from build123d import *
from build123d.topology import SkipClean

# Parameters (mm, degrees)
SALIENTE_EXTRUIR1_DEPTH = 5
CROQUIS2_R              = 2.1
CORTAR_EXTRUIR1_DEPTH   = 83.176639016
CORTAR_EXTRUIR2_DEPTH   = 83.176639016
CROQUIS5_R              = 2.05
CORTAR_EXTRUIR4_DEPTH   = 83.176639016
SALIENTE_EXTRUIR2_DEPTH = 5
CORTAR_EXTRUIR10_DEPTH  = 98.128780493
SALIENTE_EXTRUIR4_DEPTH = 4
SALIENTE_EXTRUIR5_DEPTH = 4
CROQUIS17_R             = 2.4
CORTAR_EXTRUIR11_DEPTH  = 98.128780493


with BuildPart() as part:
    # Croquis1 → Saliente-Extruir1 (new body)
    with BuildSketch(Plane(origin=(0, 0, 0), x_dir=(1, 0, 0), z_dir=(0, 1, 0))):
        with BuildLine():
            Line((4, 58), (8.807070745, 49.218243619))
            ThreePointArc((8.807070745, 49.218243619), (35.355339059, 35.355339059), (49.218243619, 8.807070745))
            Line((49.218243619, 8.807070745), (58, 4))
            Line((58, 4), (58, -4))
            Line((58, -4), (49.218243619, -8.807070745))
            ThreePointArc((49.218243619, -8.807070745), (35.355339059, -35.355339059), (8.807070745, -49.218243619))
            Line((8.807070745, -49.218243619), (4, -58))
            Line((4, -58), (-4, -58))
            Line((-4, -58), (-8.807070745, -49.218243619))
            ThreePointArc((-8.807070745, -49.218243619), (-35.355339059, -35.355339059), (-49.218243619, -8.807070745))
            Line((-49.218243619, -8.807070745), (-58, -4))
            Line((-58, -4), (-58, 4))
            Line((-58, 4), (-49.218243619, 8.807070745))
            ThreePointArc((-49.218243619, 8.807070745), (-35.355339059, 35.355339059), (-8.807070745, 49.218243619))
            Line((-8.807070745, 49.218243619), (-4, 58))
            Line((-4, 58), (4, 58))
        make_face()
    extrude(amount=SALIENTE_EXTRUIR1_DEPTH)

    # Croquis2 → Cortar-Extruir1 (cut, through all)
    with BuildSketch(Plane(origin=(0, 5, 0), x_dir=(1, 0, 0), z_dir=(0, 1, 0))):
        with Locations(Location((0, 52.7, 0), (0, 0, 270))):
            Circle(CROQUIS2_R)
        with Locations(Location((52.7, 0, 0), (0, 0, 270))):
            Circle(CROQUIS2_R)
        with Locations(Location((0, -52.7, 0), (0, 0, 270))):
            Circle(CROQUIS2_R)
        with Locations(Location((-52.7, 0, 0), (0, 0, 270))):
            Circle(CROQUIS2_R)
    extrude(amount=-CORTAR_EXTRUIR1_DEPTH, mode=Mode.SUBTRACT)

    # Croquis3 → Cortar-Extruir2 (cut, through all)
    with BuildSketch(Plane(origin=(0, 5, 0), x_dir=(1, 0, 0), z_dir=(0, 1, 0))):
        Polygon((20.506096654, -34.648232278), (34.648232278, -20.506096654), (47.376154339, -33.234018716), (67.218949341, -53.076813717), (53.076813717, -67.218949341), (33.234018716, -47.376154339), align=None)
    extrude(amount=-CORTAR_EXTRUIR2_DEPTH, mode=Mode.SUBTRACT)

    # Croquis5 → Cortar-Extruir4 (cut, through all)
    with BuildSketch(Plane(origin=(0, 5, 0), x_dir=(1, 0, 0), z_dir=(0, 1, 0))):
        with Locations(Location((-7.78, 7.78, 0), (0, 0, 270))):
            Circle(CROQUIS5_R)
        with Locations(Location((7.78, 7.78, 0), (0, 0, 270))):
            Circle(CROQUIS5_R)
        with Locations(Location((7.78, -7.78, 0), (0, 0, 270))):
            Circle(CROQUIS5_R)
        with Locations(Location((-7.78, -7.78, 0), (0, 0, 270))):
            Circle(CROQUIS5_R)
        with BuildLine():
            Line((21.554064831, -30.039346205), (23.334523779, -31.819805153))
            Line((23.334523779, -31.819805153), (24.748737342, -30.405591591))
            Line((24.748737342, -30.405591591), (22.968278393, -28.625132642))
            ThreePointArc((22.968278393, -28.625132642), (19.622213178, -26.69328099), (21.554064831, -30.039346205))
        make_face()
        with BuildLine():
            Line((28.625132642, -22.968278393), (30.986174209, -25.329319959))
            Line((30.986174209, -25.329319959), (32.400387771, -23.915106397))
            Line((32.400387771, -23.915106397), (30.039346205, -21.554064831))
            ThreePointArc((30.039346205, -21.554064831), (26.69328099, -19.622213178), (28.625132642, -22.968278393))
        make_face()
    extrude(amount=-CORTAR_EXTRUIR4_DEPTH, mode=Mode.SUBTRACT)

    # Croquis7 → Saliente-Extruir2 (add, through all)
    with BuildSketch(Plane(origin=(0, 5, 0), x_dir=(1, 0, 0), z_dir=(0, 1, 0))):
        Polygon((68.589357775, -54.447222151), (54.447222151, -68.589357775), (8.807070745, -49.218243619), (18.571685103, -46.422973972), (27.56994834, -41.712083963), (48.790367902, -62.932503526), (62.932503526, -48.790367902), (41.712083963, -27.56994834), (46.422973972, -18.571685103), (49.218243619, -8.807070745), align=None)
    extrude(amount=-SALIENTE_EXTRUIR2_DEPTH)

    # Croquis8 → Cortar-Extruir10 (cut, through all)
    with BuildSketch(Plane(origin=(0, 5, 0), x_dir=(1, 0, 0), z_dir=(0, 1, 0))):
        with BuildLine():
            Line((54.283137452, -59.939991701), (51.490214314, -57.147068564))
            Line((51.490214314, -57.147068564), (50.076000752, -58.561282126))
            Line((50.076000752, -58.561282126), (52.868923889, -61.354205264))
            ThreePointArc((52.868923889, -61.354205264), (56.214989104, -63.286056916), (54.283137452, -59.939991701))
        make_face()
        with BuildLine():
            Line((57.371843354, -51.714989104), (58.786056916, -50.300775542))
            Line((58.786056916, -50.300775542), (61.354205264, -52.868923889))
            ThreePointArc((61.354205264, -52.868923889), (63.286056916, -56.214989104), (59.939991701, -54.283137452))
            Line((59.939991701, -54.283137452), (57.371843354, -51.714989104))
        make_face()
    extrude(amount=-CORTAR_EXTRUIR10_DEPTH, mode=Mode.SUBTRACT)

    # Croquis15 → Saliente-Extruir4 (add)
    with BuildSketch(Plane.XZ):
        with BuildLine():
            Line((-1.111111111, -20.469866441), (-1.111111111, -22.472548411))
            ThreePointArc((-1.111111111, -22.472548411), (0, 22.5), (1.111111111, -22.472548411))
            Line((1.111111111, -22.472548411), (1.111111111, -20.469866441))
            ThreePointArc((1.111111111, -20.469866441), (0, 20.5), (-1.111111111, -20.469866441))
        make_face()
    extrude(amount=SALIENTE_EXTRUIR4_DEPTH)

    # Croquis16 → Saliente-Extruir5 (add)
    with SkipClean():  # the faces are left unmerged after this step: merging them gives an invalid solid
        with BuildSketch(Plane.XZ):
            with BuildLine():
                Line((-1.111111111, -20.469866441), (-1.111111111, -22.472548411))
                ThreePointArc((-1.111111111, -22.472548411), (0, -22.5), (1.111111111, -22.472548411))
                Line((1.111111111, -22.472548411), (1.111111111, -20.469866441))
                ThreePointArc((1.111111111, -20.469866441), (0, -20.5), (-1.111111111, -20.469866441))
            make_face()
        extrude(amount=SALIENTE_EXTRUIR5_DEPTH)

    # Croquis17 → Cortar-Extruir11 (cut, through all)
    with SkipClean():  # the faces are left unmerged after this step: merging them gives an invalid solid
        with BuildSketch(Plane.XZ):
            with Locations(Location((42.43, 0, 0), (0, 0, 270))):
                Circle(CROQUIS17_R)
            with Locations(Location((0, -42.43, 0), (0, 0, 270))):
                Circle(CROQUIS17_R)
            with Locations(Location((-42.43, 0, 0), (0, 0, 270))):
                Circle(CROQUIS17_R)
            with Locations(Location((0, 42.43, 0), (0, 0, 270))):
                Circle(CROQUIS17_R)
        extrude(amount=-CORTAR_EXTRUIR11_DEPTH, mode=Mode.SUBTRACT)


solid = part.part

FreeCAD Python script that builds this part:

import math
import FreeCAD as App
import Part
import Sketcher

V = App.Vector
Q = App.Units.Quantity

doc = App.newDocument("Part")
body = doc.addObject("PartDesign::Body", "Body")

# Sketch on XZ plane
sketch1 = body.newObject("Sketcher::SketchObject", "Sketch")
sketch1.AttachmentSupport = (doc.getObject("XZ_Plane"), [""])
sketch1.MapMode = "FlatFace"
sketch1.addGeometry([
    Part.LineSegment(V(9, -49, 0), V(4, -58, 0)),  # 0
    Part.LineSegment(V(4, -58, 0), V(-4, -58, 0)),  # 1
    Part.LineSegment(V(-4, -58, 0), V(-9, -49, 0)),  # 2
    Part.ArcOfCircle(Part.Circle(V(0, 0, 0), V(0, 0, 1), 50), math.radians(-170), math.radians(-100)),  # 3
    Part.LineSegment(V(-49, -9, 0), V(-58, -4, 0)),  # 4
    Part.LineSegment(V(-58, -4, 0), V(-58, 4, 0)),  # 5
    Part.LineSegment(V(-58, 4, 0), V(-49, 9, 0)),  # 6
    Part.ArcOfCircle(Part.Circle(V(0, 0, 0), V(0, 0, 1), 50), math.radians(100), math.radians(170)),  # 7
    Part.LineSegment(V(-9, 49, 0), V(-4, 58, 0)),  # 8
    Part.LineSegment(V(-4, 58, 0), V(4, 58, 0)),  # 9
    Part.LineSegment(V(4, 58, 0), V(9, 49, 0)),  # 10
    Part.ArcOfCircle(Part.Circle(V(0, 0, 0), V(0, 0, 1), 50), math.radians(10), math.radians(80)),  # 11
    Part.LineSegment(V(49, 9, 0), V(58, 4, 0)),  # 12
    Part.LineSegment(V(58, 4, 0), V(58, -4, 0)),  # 13
    Part.LineSegment(V(58, -4, 0), V(49, -9, 0)),  # 14
    Part.ArcOfCircle(Part.Circle(V(0, 0, 0), V(0, 0, 1), 50), math.radians(-80), math.radians(-10)),  # 15
], False)
sketch1.addConstraint([
    Sketcher.Constraint("Coincident", 0, 2, 1, 1),
    Sketcher.Constraint("Coincident", 1, 2, 2, 1),
    Sketcher.Constraint("Coincident", 2, 2, 3, 2),
    Sketcher.Constraint("Coincident", 3, 1, 4, 1),
    Sketcher.Constraint("Coincident", 4, 2, 5, 1),
    Sketcher.Constraint("Coincident", 5, 2, 6, 1),
    Sketcher.Constraint("Coincident", 6, 2, 7, 2),
    Sketcher.Constraint("Coincident", 7, 1, 8, 1),
    Sketcher.Constraint("Coincident", 8, 2, 9, 1),
    Sketcher.Constraint("Coincident", 9, 2, 10, 1),
    Sketcher.Constraint("Coincident", 10, 2, 11, 2),
    Sketcher.Constraint("Coincident", 11, 1, 12, 1),
    Sketcher.Constraint("Coincident", 12, 2, 13, 1),
    Sketcher.Constraint("Coincident", 13, 2, 14, 1),
    Sketcher.Constraint("Coincident", 14, 2, 15, 2),
    Sketcher.Constraint("Coincident", 15, 1, 0, 1),
    Sketcher.Constraint("Horizontal", 1),
    Sketcher.Constraint("Vertical", 5),
    Sketcher.Constraint("Horizontal", 9),
    Sketcher.Constraint("Vertical", 13),
    Sketcher.Constraint("Coincident", 3, 3, -1, 1),
    Sketcher.Constraint("Coincident", 7, 3, -1, 1),
    Sketcher.Constraint("Coincident", 11, 3, -1, 1),
    Sketcher.Constraint("Coincident", 15, 3, -1, 1),
    Sketcher.Constraint("Equal", 3, 7),
    Sketcher.Constraint("Equal", 7, 11),
    Sketcher.Constraint("Equal", 11, 15),
    Sketcher.Constraint("Symmetric", 0, 2, 8, 2, -1, 1),
    Sketcher.Constraint("Symmetric", 4, 2, 12, 2, -1, 1),
    Sketcher.Constraint("Perpendicular", 0, 4),
    Sketcher.Constraint("Perpendicular", 2, 6),
    Sketcher.Constraint("Perpendicular", 4, 8),
    Sketcher.Constraint("Perpendicular", 6, 10),
    Sketcher.Constraint("Perpendicular", 8, 12),
    Sketcher.Constraint("Perpendicular", 10, 14),
    Sketcher.Constraint("Horizontal", 7, 1, 10, 2),
    Sketcher.Constraint("Horizontal", 6, 2, 11, 1),
    Sketcher.Constraint("Horizontal", 5, 2, 12, 2),
    Sketcher.Constraint("Horizontal", 4, 2, 13, 2),
    Sketcher.Constraint("Horizontal", 2, 2, 15, 1),
    Sketcher.Constraint("Equal", 9, 5),
    Sketcher.Constraint("Equal", 2, 4),
    Sketcher.Constraint("Radius", 3, Q("50 mm")),
    Sketcher.Constraint("DistanceX", 1, 2, 1, 1, Q("8 mm")),
    Sketcher.Constraint("DistanceY", 0, 2, -1, 1, Q("58 mm")),
    Sketcher.Constraint("DistanceX", 2, 2, -1, 1, Q("8.807071 mm")),
])
pad1 = body.newObject("PartDesign::Pad", "Pad")
pad1.Profile = sketch1
pad1.Length = 5
pad1.Reversed = True

# Sketch on XZ plane
sketch2 = body.newObject("Sketcher::SketchObject", "Sketch001")
sketch2.AttachmentSupport = (doc.getObject("XZ_Plane"), [""])
sketch2.MapMode = "FlatFace"
sketch2.AttachmentOffset = App.Placement(V(0, 0, -5), App.Rotation())
sketch2.addGeometry([
    Part.Circle(V(0, -52.7, 0), V(0, 0, 1), 2.1),
    Part.Circle(V(52.7, 0, 0), V(0, 0, 1), 2.1),
    Part.Circle(V(0, 52.7, 0), V(0, 0, 1), 2.1),
    Part.Circle(V(-52.7, 0, 0), V(0, 0, 1), 2.1),
], False)
sketch2.addConstraint([
    Sketcher.Constraint("Equal", 0, 1),
    Sketcher.Constraint("Equal", 1, 2),
    Sketcher.Constraint("Equal", 2, 3),
    Sketcher.Constraint("Symmetric", 0, 3, 2, 3, -1, 1),
    Sketcher.Constraint("Symmetric", 1, 3, 3, 3, -1, 1),
    Sketcher.Constraint("PointOnObject", 0, 3, -2),
    Sketcher.Constraint("PointOnObject", 1, 3, -1),
    Sketcher.Constraint("Diameter", 0, Q("4.2 mm")),
    Sketcher.Constraint("DistanceY", 0, 3, -1, 1, Q("52.7 mm")),
    Sketcher.Constraint("DistanceX", -1, 1, 1, 3, Q("52.7 mm")),
])
pocket1 = body.newObject("PartDesign::Pocket", "Pocket")
pocket1.Profile = sketch2
pocket1.Type = "ThroughAll"
pocket1.Reversed = True

# Sketch on XZ plane
sketch3 = body.newObject("Sketcher::SketchObject", "Sketch002")
sketch3.AttachmentSupport = (doc.getObject("XZ_Plane"), [""])
sketch3.MapMode = "FlatFace"
sketch3.AttachmentOffset = App.Placement(V(0, 0, -5), App.Rotation())
sketch3.addGeometry([
    Part.LineSegment(V(35, 21, 0), V(21, 35, 0)),  # 0
    Part.LineSegment(V(21, 35, 0), V(33, 47, 0)),  # 1
    Part.LineSegment(V(33, 47, 0), V(53, 67, 0)),  # 2
    Part.LineSegment(V(53, 67, 0), V(67, 53, 0)),  # 3
    Part.LineSegment(V(67, 53, 0), V(47, 33, 0)),  # 4
    Part.LineSegment(V(47, 33, 0), V(35, 21, 0)),  # 5
], False)
sketch3.addConstraint([
    Sketcher.Constraint("Coincident", 0, 2, 1, 1),
    Sketcher.Constraint("Coincident", 1, 2, 2, 1),
    Sketcher.Constraint("Coincident", 2, 2, 3, 1),
    Sketcher.Constraint("Coincident", 3, 2, 4, 1),
    Sketcher.Constraint("Coincident", 4, 2, 5, 1),
    Sketcher.Constraint("Coincident", 5, 2, 0, 1),
    Sketcher.Constraint("Perpendicular", 0, 1),
    Sketcher.Constraint("Parallel", 1, 2),
    Sketcher.Constraint("Perpendicular", 2, 3),
    Sketcher.Constraint("Perpendicular", 3, 4),
    Sketcher.Constraint("Parallel", 4, 5),
    Sketcher.Constraint("Equal", 2, 4),
    Sketcher.Constraint("Angle", 0, Q("135 deg")),
    Sketcher.Constraint("Distance", 0, Q("20 mm")),
    Sketcher.Constraint("Distance", 1, Q("18 mm")),
    Sketcher.Constraint("Distance", 2, Q("28.06195 mm")),
    Sketcher.Constraint("DistanceX", -1, 1, 1, 2, Q("33.234019 mm")),
    Sketcher.Constraint("DistanceY", -1, 1, 2, 2, Q("67.218949 mm")),
])
pocket2 = body.newObject("PartDesign::Pocket", "Pocket001")
pocket2.Profile = sketch3
pocket2.Type = "ThroughAll"
pocket2.Reversed = True

# Sketch on XZ plane
sketch4 = body.newObject("Sketcher::SketchObject", "Sketch003")
sketch4.AttachmentSupport = (doc.getObject("XZ_Plane"), [""])
sketch4.MapMode = "FlatFace"
sketch4.AttachmentOffset = App.Placement(V(0, 0, -5), App.Rotation())
sketch4.addGeometry([
    Part.Circle(V(-7.8, -7.8, 0), V(0, 0, 1), 2),  # 0
    Part.Circle(V(7.8, -7.8, 0), V(0, 0, 1), 2),  # 1
    Part.Circle(V(7.8, 7.8, 0), V(0, 0, 1), 2),  # 2
    Part.Circle(V(-7.8, 7.8, 0), V(0, 0, 1), 2),  # 3
    Part.LineSegment(V(21.6, 30, 0), V(23.3, 31.8, 0)),  # 4
    Part.LineSegment(V(23.3, 31.8, 0), V(24.7, 30.4, 0)),  # 5
    Part.LineSegment(V(24.7, 30.4, 0), V(23, 28.6, 0)),  # 6
    Part.ArcOfCircle(Part.Circle(V(21, 28.1, 0), V(0, 0, 1), 2), math.radians(75), math.radians(375)),  # 7
    Part.LineSegment(V(28.6, 23, 0), V(31, 25.3, 0)),  # 8
    Part.LineSegment(V(31, 25.3, 0), V(32.4, 23.9, 0)),  # 9
    Part.LineSegment(V(32.4, 23.9, 0), V(30, 21.6, 0)),  # 10
    Part.ArcOfCircle(Part.Circle(V(28.1, 21, 0), V(0, 0, 1), 2), math.radians(75), math.radians(375)),  # 11
], False)
sketch4.addConstraint([
    Sketcher.Constraint("Coincident", 4, 2, 5, 1),
    Sketcher.Constraint("Coincident", 5, 2, 6, 1),
    Sketcher.Constraint("Coincident", 6, 2, 7, 2),
    Sketcher.Constraint("Coincident", 7, 1, 4, 1),
    Sketcher.Constraint("Coincident", 8, 2, 9, 1),
    Sketcher.Constraint("Coincident", 9, 2, 10, 1),
    Sketcher.Constraint("Coincident", 10, 2, 11, 2),
    Sketcher.Constraint("Coincident", 11, 1, 8, 1),
    Sketcher.Constraint("Equal", 0, 1),
    Sketcher.Constraint("Equal", 1, 2),
    Sketcher.Constraint("Equal", 2, 3),
    Sketcher.Constraint("Equal", 7, 11),
    Sketcher.Constraint("Symmetric", 0, 3, 2, 3, -1, 1),
    Sketcher.Constraint("Symmetric", 1, 3, 3, 3, -1, 1),
    Sketcher.Constraint("Symmetric", 0, 3, 1, 3, -2),
    Sketcher.Constraint("Perpendicular", 4, 5),
    Sketcher.Constraint("Perpendicular", 5, 6),
    Sketcher.Constraint("Parallel", 6, 8),
    Sketcher.Constraint("Perpendicular", 8, 9),
    Sketcher.Constraint("Perpendicular", 9, 10),
    Sketcher.Constraint("Equal", 4, 6),
    Sketcher.Constraint("Equal", 5, 9),
    Sketcher.Constraint("Equal", 8, 10),
    Sketcher.Constraint("Radius", 7, Q("2 mm")),
    Sketcher.Constraint("Diameter", 0, Q("4.1 mm")),
    Sketcher.Constraint("Angle", 4, Q("45 deg")),
    Sketcher.Constraint("Distance", 5, Q("2 mm")),
    Sketcher.Constraint("DistanceX", 0, 3, -1, 1, Q("7.78 mm")),
    Sketcher.Constraint("DistanceY", 0, 3, -1, 1, Q("7.78 mm")),
    Sketcher.Constraint("DistanceY", 9, 2, 4, 2, Q("7.904699 mm")),
    Sketcher.Constraint("Distance", 4, Q("2.517949 mm")),
    Sketcher.Constraint("DistanceY", -1, 1, 5, 2, Q("30.405592 mm")),
    Sketcher.Constraint("DistanceX", -1, 1, 6, 2, Q("22.968278 mm")),
    Sketcher.Constraint("DistanceY", -1, 1, 11, 1, Q("22.968278 mm")),
    Sketcher.Constraint("DistanceX", 4, 2, 11, 3, Q("4.772971 mm")),
])
pocket3 = body.newObject("PartDesign::Pocket", "Pocket002")
pocket3.Profile = sketch4
pocket3.Type = "ThroughAll"
pocket3.Reversed = True

# Sketch on XZ plane
sketch5 = body.newObject("Sketcher::SketchObject", "Sketch004")
sketch5.AttachmentSupport = (doc.getObject("XZ_Plane"), [""])
sketch5.MapMode = "FlatFace"
sketch5.AttachmentOffset = App.Placement(V(0, 0, -5), App.Rotation())
sketch5.addGeometry([
    Part.LineSegment(V(54, 69, 0), V(69, 54, 0)),  # 0
    Part.LineSegment(V(69, 54, 0), V(49, 9, 0)),  # 1
    Part.LineSegment(V(49, 9, 0), V(46, 19, 0)),  # 2
    Part.LineSegment(V(46, 19, 0), V(42, 28, 0)),  # 3
    Part.LineSegment(V(42, 28, 0), V(63, 49, 0)),  # 4
    Part.LineSegment(V(63, 49, 0), V(49, 63, 0)),  # 5
    Part.LineSegment(V(49, 63, 0), V(28, 42, 0)),  # 6
    Part.LineSegment(V(28, 42, 0), V(19, 46, 0)),  # 7
    Part.LineSegment(V(19, 46, 0), V(9, 49, 0)),  # 8
    Part.LineSegment(V(9, 49, 0), V(54, 69, 0)),  # 9
], False)
sketch5.addConstraint([
    Sketcher.Constraint("Coincident", 0, 2, 1, 1),
    Sketcher.Constraint("Coincident", 1, 2, 2, 1),
    Sketcher.Constraint("Coincident", 2, 2, 3, 1),
    Sketcher.Constraint("Coincident", 3, 2, 4, 1),
    Sketcher.Constraint("Coincident", 4, 2, 5, 1),
    Sketcher.Constraint("Coincident", 5, 2, 6, 1),
    Sketcher.Constraint("Coincident", 6, 2, 7, 1),
    Sketcher.Constraint("Coincident", 7, 2, 8, 1),
    Sketcher.Constraint("Coincident", 8, 2, 9, 1),
    Sketcher.Constraint("Coincident", 9, 2, 0, 1),
    Sketcher.Constraint("Perpendicular", 0, 4),
    Sketcher.Constraint("Perpendicular", 4, 5),
    Sketcher.Constraint("Perpendicular", 5, 6),
    Sketcher.Constraint("Equal", 2, 3),
    Sketcher.Constraint("Equal", 0, 5),
    Sketcher.Constraint("Equal", 4, 6),
    Sketcher.Constraint("Equal", 3, 7),
    Sketcher.Constraint("Equal", 7, 8),
    Sketcher.Constraint("Equal", 1, 9),
    Sketcher.Constraint("Angle", 0, Q("-45 deg")),
    Sketcher.Constraint("Distance", 0, Q("20 mm")),
    Sketcher.Constraint("DistanceY", 2, 2, 6, 2, Q("23.140399 mm")),
    Sketcher.Constraint("DistanceX", 7, 2, 3, 2, Q("23.140399 mm")),
    Sketcher.Constraint("Distance", 1, Q("49.580878 mm")),
    Sketcher.Constraint("Distance", 2, Q("10.156831 mm")),
    Sketcher.Constraint("DistanceY", -1, 1, 1, 2, Q("8.807071 mm")),
    Sketcher.Constraint("DistanceY", -1, 1, 3, 2, Q("27.569948 mm")),
    Sketcher.Constraint("DistanceX", -1, 1, 6, 2, Q("27.569948 mm")),
    Sketcher.Constraint("DistanceX", -1, 1, 8, 2, Q("8.807071 mm")),
    Sketcher.Constraint("DistanceX", 3, 2, 4, 2, Q("21.22042 mm")),
])
pad2 = body.newObject("PartDesign::Pad", "Pad001")
pad2.Profile = sketch5
pad2.Length = 5

# Sketch on XZ plane
sketch6 = body.newObject("Sketcher::SketchObject", "Sketch005")
sketch6.AttachmentSupport = (doc.getObject("XZ_Plane"), [""])
sketch6.MapMode = "FlatFace"
sketch6.AttachmentOffset = App.Placement(V(0, 0, -5), App.Rotation())
sketch6.addGeometry([
    Part.LineSegment(V(54.3, 59.9, 0), V(51.5, 57.1, 0)),  # 0
    Part.LineSegment(V(51.5, 57.1, 0), V(50.1, 58.6, 0)),  # 1
    Part.LineSegment(V(50.1, 58.6, 0), V(52.9, 61.4, 0)),  # 2
    Part.ArcOfCircle(Part.Circle(V(54.8, 61.9, 0), V(0, 0, 1), 2), math.radians(-105), math.radians(195)),  # 3
    Part.LineSegment(V(58.8, 50.3, 0), V(57.4, 51.7, 0)),  # 4
    Part.LineSegment(V(57.4, 51.7, 0), V(59.9, 54.3, 0)),  # 5
    Part.ArcOfCircle(Part.Circle(V(61.9, 54.8, 0), V(0, 0, 1), 2), math.radians(-105), math.radians(195)),  # 6
    Part.LineSegment(V(61.4, 52.9, 0), V(58.8, 50.3, 0)),  # 7
], False)
sketch6.addConstraint([
    Sketcher.Constraint("Coincident", 0, 2, 1, 1),
    Sketcher.Constraint("Coincident", 1, 2, 2, 1),
    Sketcher.Constraint("Coincident", 2, 2, 3, 2),
    Sketcher.Constraint("Coincident", 3, 1, 0, 1),
    Sketcher.Constraint("Coincident", 4, 2, 5, 1),
    Sketcher.Constraint("Coincident", 5, 2, 6, 2),
    Sketcher.Constraint("Coincident", 6, 1, 7, 1),
    Sketcher.Constraint("Coincident", 7, 2, 4, 1),
    Sketcher.Constraint("Equal", 3, 6),
    Sketcher.Constraint("Perpendicular", 0, 1),
    Sketcher.Constraint("Perpendicular", 1, 2),
    Sketcher.Constraint("Perpendicular", 2, 4),
    Sketcher.Constraint("Perpendicular", 4, 5),
    Sketcher.Constraint("Parallel", 5, 7),
    Sketcher.Constraint("Equal", 0, 2),
    Sketcher.Constraint("Equal", 1, 4),
    Sketcher.Constraint("Equal", 5, 7),
    Sketcher.Constraint("Radius", 3, Q("2 mm")),
    Sketcher.Constraint("Angle", 0, Q("-135 deg")),
    Sketcher.Constraint("Distance", 1, Q("2 mm")),
    Sketcher.Constraint("DistanceX", 4, 2, 6, 3, Q("4.5 mm")),
    Sketcher.Constraint("DistanceX", -1, 1, 1, 2, Q("50.076001 mm")),
    Sketcher.Constraint("Distance", 0, Q("3.94979 mm")),
    Sketcher.Constraint("DistanceY", -1, 1, 0, 2, Q("57.147069 mm")),
    Sketcher.Constraint("DistanceY", -1, 1, 4, 2, Q("51.714989 mm")),
    Sketcher.Constraint("DistanceX", -1, 1, 5, 2, Q("59.939992 mm")),
])
pocket4 = body.newObject("PartDesign::Pocket", "Pocket003")
pocket4.Profile = sketch6
pocket4.Type = "ThroughAll"
pocket4.Reversed = True

# Sketch on XZ plane
sketch7 = body.newObject("Sketcher::SketchObject", "Sketch006")
sketch7.AttachmentSupport = (doc.getObject("XZ_Plane"), [""])
sketch7.MapMode = "FlatFace"
sketch7.addGeometry([
    Part.LineSegment(V(-1.1, -22.5, 0), V(-1.1, -20.5, 0)),
    Part.ArcOfCircle(Part.Circle(V(0, 0, 0), V(0, 0, 1), 20.5), math.radians(-87), math.radians(267)),
    Part.LineSegment(V(1.1, -20.5, 0), V(1.1, -22.5, 0)),
    Part.ArcOfCircle(Part.Circle(V(0, 0, 0), V(0, 0, 1), 22.5), math.radians(-87), math.radians(267)),
], False)
sketch7.addConstraint([
    Sketcher.Constraint("Coincident", 0, 2, 1, 2),
    Sketcher.Constraint("Coincident", 1, 1, 2, 1),
    Sketcher.Constraint("Coincident", 2, 2, 3, 1),
    Sketcher.Constraint("Coincident", 3, 2, 0, 1),
    Sketcher.Constraint("Vertical", 0),
    Sketcher.Constraint("Vertical", 2),
    Sketcher.Constraint("Coincident", 1, 3, -1, 1),
    Sketcher.Constraint("Coincident", 3, 3, -1, 1),
    Sketcher.Constraint("Horizontal", 0, 2, 1, 1),
    Sketcher.Constraint("Radius", 1, Q("20.5 mm")),
    Sketcher.Constraint("Radius", 3, Q("22.5 mm")),
    Sketcher.Constraint("DistanceX", 0, 2, -1, 1, Q("1.111111 mm")),
])
pad3 = body.newObject("PartDesign::Pad", "Pad002")
pad3.Profile = sketch7
pad3.Length = 4

# Sketch on XZ plane
sketch8 = body.newObject("Sketcher::SketchObject", "Sketch007")
sketch8.AttachmentSupport = (doc.getObject("XZ_Plane"), [""])
sketch8.MapMode = "FlatFace"
sketch8.addGeometry([
    Part.LineSegment(V(-1.1, -20.5, 0), V(-1.1, -22.5, 0)),
    Part.ArcOfCircle(Part.Circle(V(0, 0, 0), V(0, 0, 1), 22.5), math.radians(-92.83), math.radians(-87.17)),
    Part.LineSegment(V(1.1, -22.5, 0), V(1.1, -20.5, 0)),
    Part.ArcOfCircle(Part.Circle(V(0, 0, 0), V(0, 0, 1), 20.5), math.radians(-93.11), math.radians(-86.89)),
], False)
sketch8.addConstraint([
    Sketcher.Constraint("Coincident", 0, 2, 1, 1),
    Sketcher.Constraint("Coincident", 1, 2, 2, 1),
    Sketcher.Constraint("Coincident", 2, 2, 3, 2),
    Sketcher.Constraint("Coincident", 3, 1, 0, 1),
    Sketcher.Constraint("Vertical", 0),
    Sketcher.Constraint("Vertical", 2),
    Sketcher.Constraint("Coincident", 1, 3, -1, 1),
    Sketcher.Constraint("Coincident", 3, 3, -1, 1),
    Sketcher.Constraint("Horizontal", 0, 2, 1, 2),
    Sketcher.Constraint("Radius", 1, Q("22.5 mm")),
    Sketcher.Constraint("Radius", 3, Q("20.5 mm")),
    Sketcher.Constraint("DistanceX", 0, 2, -1, 1, Q("1.111111 mm")),
])
pad4 = body.newObject("PartDesign::Pad", "Pad003")
pad4.Profile = sketch8
pad4.Length = 4

# Sketch on XZ plane
sketch9 = body.newObject("Sketcher::SketchObject", "Sketch008")
sketch9.AttachmentSupport = (doc.getObject("XZ_Plane"), [""])
sketch9.MapMode = "FlatFace"
sketch9.addGeometry([
    Part.Circle(V(42.4, 0, 0), V(0, 0, 1), 2.4),
    Part.Circle(V(0, -42.4, 0), V(0, 0, 1), 2.4),
    Part.Circle(V(-42.4, 0, 0), V(0, 0, 1), 2.4),
    Part.Circle(V(0, 42.4, 0), V(0, 0, 1), 2.4),
], False)
sketch9.addConstraint([
    Sketcher.Constraint("Equal", 0, 1),
    Sketcher.Constraint("Equal", 1, 2),
    Sketcher.Constraint("Equal", 2, 3),
    Sketcher.Constraint("Symmetric", 0, 3, 2, 3, -1, 1),
    Sketcher.Constraint("Symmetric", 1, 3, 3, 3, -1, 1),
    Sketcher.Constraint("PointOnObject", 0, 3, -1),
    Sketcher.Constraint("PointOnObject", 1, 3, -2),
    Sketcher.Constraint("Diameter", 0, Q("4.8 mm")),
    Sketcher.Constraint("DistanceX", -1, 1, 0, 3, Q("42.43 mm")),
    Sketcher.Constraint("DistanceY", 1, 3, -1, 1, Q("42.43 mm")),
])
pocket5 = body.newObject("PartDesign::Pocket", "Pocket004")
pocket5.Profile = sketch9
pocket5.Type = "ThroughAll"

doc.recompute()
